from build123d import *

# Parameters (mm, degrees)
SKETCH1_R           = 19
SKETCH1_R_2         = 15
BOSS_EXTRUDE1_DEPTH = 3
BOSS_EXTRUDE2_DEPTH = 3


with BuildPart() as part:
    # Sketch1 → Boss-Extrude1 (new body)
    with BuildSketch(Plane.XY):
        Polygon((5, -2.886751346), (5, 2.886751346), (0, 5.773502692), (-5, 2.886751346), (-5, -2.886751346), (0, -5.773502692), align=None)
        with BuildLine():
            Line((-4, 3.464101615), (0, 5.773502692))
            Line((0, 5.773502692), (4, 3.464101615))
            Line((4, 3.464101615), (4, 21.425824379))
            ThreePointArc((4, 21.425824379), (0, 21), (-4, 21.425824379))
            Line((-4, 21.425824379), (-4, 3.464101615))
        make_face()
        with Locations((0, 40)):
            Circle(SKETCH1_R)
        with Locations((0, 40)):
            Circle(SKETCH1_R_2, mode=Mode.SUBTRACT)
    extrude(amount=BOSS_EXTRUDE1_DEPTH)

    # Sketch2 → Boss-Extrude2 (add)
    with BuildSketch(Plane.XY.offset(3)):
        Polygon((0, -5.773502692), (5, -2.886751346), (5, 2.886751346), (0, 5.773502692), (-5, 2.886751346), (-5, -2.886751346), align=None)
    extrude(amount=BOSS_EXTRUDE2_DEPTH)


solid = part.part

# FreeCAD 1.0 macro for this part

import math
import FreeCAD as App
import Part
import Sketcher
Q = App.Units.Quantity

doc = App.newDocument("Part")
body = doc.addObject("PartDesign::Body", "Body")

# Sketch on XY plane
sketch1 = body.newObject("Sketcher::SketchObject", "Sketch")
sketch1.AttachmentSupport = (doc.getObject("XY_Plane"), [""])
sketch1.MapMode = "FlatFace"
sketch1.addGeometry([
    Part.LineSegment(App.Vector(5, -2.9, 0), App.Vector(5, 2.9, 0)),  # 0
    Part.LineSegment(App.Vector(5, 2.9, 0), App.Vector(4, 3.5, 0)),  # 1
    Part.LineSegment(App.Vector(4, 3.5, 0), App.Vector(4, 21.4, 0)),  # 2
    Part.ArcOfCircle(Part.Circle(App.Vector(0, 40, 0), App.Vector(0, 0, 1), 19), math.radians(-78), math.radians(258)),  # 3
    Part.LineSegment(App.Vector(-4, 21.4, 0), App.Vector(-4, 3.5, 0)),  # 4
    Part.LineSegment(App.Vector(-4, 3.5, 0), App.Vector(-5, 2.9, 0)),  # 5
    Part.LineSegment(App.Vector(-5, 2.9, 0), App.Vector(-5, -2.9, 0)),  # 6
    Part.LineSegment(App.Vector(-5, -2.9, 0), App.Vector(0, -5.8, 0)),  # 7
    Part.LineSegment(App.Vector(0, -5.8, 0), App.Vector(5, -2.9, 0)),  # 8
    Part.Circle(App.Vector(0, 40, 0), App.Vector(0, 0, 1), 15),  # 9
], False)
sketch1.addConstraint([
    Sketcher.Constraint("Coincident", 0, 2, 1, 1),
    Sketcher.Constraint("Coincident", 1, 2, 2, 1),
    Sketcher.Constraint("Coincident", 2, 2, 3, 1),
    Sketcher.Constraint("Coincident", 3, 2, 4, 1),
    Sketcher.Constraint("Coincident", 4, 2, 5, 1),
    Sketcher.Constraint("Coincident", 5, 2, 6, 1),
    Sketcher.Constraint("Coincident", 6, 2, 7, 1),
    Sketcher.Constraint("Coincident", 7, 2, 8, 1),
    Sketcher.Constraint("Coincident", 8, 2, 0, 1),
    Sketcher.Constraint("Vertical", 0),
    Sketcher.Constraint("Vertical", 2),
    Sketcher.Constraint("Vertical", 4),
    Sketcher.Constraint("Vertical", 6),
    Sketcher.Constraint("Coincident", 9, 3, 3, 3),
    Sketcher.Constraint("Symmetric", 0, 2, 6, 2, -1, 1),
    Sketcher.Constraint("Symmetric", 2, 2, 3, 2, -2),
    Sketcher.Constraint("PointOnObject", 7, 2, -2),
    Sketcher.Constraint("Parallel", 1, 7),
    Sketcher.Constraint("Parallel", 5, 8),
    Sketcher.Constraint("Horizontal", 1, 2, 4, 2),
    Sketcher.Constraint("Horizontal", 0, 2, 5, 2),
    Sketcher.Constraint("Diameter", 9, Q("30 mm")),
    Sketcher.Constraint("Radius", 3, Q("19 mm")),
    Sketcher.Constraint("Angle", 1, Q("150 deg")),
    Sketcher.Constraint("DistanceY", -1, 1, 3, 3, Q("40 mm")),
    Sketcher.Constraint("DistanceX", -1, 1, 0, 2, Q("5 mm")),
    Sketcher.Constraint("DistanceX", -1, 1, 1, 2, Q("4 mm")),
    Sketcher.Constraint("DistanceY", -1, 1, 1, 2, Q("3.464102 mm")),
])
pad1 = body.newObject("PartDesign::Pad", "Pad")
pad1.Profile = sketch1
pad1.Length = 3

# Sketch on XY plane
sketch2 = body.newObject("Sketcher::SketchObject", "Sketch001")
sketch2.AttachmentSupport = (doc.getObject("XY_Plane"), [""])
sketch2.MapMode = "FlatFace"
sketch2.AttachmentOffset = App.Placement(App.Vector(0, 0, 3), App.Rotation())
sketch2.addGeometry([
    Part.LineSegment(App.Vector(0, -6, 0), App.Vector(5, -3, 0)),  # 0
    Part.LineSegment(App.Vector(5, -3, 0), App.Vector(5, 3, 0)),  # 1
    Part.LineSegment(App.Vector(5, 3, 0), App.Vector(0, 6, 0)),  # 2
    Part.LineSegment(App.Vector(0, 6, 0), App.Vector(-5, 3, 0)),  # 3
    Part.LineSegment(App.Vector(-5, 3, 0), App.Vector(-5, -3, 0)),  # 4
    Part.LineSegment(App.Vector(-5, -3, 0), App.Vector(0, -6, 0)),  # 5
], False)
sketch2.addConstraint([
    Sketcher.Constraint("Coincident", 0, 2, 1, 1),
    Sketcher.Constraint("Coincident", 1, 2, 2, 1),
    Sketcher.Constraint("Coincident", 2, 2, 3, 1),
    Sketcher.Constraint("Coincident", 3, 2, 4, 1),
    Sketcher.Constraint("Coincident", 4, 2, 5, 1),
    Sketcher.Constraint("Coincident", 5, 2, 0, 1),
    Sketcher.Constraint("Vertical", 1),
    Sketcher.Constraint("Vertical", 4),
    Sketcher.Constraint("Symmetric", 0, 2, 3, 2, -1, 1),
    Sketcher.Constraint("Symmetric", 2, 2, 5, 2, -1, 1),
    Sketcher.Constraint("PointOnObject", 2, 2, -2),
    Sketcher.Constraint("Parallel", 2, 5),
    Sketcher.Constraint("Horizontal", 1, 2, 3, 2),
    Sketcher.Constraint("Angle", 0, Q("30 deg")),
    Sketcher.Constraint("DistanceX", -1, 1, 0, 2, Q("5 mm")),
    Sketcher.Constraint("DistanceY", 1, 1, 1, 2, Q("5.773503 mm")),
])
pad2 = body.newObject("PartDesign::Pad", "Pad001")
pad2.Profile = sketch2
pad2.Length = 3

doc.recompute()
